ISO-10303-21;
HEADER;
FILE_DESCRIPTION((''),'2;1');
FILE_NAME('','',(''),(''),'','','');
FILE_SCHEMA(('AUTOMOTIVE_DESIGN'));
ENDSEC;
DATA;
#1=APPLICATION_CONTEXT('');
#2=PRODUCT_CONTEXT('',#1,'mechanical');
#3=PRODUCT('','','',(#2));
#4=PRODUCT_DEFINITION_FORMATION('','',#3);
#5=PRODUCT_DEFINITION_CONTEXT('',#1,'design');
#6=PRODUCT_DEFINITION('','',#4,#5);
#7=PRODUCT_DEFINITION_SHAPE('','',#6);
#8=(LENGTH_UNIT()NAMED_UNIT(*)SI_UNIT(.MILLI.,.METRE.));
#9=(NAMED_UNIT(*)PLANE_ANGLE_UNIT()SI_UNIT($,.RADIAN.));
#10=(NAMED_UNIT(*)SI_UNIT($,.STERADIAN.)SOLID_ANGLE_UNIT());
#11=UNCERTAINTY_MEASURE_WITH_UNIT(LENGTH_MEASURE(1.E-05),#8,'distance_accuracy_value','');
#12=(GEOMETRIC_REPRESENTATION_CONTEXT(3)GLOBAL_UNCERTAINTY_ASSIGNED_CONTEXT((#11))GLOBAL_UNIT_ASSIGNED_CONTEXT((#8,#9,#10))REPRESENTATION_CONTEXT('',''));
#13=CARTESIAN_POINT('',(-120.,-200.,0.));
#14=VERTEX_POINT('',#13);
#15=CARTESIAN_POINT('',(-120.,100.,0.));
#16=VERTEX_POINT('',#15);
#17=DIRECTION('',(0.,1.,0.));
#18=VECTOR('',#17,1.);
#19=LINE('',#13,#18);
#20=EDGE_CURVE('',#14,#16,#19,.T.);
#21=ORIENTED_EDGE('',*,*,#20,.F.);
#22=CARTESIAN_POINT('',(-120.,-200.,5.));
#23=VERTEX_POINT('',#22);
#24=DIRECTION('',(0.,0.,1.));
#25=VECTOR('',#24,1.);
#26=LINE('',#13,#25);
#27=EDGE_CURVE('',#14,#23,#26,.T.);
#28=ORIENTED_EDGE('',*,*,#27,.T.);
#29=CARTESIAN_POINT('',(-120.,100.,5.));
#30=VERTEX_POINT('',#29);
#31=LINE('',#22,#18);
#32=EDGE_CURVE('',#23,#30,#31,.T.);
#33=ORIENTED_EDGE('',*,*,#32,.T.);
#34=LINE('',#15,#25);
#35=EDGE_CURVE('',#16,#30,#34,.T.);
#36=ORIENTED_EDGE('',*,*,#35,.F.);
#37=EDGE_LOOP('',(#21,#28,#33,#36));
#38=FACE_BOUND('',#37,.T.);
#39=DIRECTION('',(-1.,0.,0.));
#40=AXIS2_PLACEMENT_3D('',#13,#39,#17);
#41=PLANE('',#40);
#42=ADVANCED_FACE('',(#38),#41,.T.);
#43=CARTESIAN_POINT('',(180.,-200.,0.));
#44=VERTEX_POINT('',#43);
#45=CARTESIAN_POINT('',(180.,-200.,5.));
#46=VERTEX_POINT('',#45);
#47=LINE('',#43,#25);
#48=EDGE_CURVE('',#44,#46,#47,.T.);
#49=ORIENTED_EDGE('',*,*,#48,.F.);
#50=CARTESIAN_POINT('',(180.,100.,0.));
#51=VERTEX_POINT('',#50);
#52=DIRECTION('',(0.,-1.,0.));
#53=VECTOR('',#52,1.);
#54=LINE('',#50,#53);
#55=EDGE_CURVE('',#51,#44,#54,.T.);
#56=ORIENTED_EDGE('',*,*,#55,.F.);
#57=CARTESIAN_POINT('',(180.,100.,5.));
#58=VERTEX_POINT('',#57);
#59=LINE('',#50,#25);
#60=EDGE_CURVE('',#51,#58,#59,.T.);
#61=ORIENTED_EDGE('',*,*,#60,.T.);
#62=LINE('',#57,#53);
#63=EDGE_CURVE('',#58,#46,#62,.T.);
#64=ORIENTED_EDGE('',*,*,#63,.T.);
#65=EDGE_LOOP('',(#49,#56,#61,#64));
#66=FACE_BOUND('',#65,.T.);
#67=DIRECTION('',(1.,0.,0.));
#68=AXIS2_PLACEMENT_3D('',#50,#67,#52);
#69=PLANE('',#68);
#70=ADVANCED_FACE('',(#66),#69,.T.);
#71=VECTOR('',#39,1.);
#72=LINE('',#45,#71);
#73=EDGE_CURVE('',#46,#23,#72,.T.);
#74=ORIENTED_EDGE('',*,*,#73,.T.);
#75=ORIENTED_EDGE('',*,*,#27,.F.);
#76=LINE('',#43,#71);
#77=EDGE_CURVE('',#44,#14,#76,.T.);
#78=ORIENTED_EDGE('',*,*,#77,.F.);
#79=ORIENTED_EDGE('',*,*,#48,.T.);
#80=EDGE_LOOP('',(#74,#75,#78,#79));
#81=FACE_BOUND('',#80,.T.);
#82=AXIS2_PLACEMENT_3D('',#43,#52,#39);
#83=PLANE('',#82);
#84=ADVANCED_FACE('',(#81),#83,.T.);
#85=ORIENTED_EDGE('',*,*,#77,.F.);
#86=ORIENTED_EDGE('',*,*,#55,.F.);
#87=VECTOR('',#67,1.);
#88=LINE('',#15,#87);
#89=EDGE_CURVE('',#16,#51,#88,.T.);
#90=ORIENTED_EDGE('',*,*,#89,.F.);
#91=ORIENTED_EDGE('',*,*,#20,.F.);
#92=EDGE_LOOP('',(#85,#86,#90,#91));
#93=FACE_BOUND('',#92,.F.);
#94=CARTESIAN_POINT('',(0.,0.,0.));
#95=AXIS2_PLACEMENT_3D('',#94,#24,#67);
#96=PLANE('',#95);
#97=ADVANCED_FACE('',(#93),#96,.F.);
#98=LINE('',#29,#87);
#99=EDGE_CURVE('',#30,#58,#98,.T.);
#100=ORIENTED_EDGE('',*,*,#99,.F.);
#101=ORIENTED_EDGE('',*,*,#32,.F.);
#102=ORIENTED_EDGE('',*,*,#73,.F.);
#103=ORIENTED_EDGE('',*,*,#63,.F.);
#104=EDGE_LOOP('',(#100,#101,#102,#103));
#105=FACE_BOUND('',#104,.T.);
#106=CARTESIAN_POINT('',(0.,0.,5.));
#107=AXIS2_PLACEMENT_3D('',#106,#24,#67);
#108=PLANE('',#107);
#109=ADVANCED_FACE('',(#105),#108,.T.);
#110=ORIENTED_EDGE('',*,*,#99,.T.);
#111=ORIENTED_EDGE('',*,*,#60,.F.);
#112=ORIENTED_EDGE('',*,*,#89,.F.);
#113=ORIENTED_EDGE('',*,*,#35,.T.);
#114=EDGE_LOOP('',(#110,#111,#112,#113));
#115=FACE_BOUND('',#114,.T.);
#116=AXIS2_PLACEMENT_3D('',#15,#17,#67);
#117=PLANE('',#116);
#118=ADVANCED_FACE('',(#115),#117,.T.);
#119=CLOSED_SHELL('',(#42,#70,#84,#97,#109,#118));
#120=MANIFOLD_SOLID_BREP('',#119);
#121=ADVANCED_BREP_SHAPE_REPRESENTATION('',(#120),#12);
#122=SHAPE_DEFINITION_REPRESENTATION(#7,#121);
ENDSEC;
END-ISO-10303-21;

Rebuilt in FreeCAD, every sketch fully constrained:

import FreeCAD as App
import Part
import Sketcher
from FreeCAD import Vector

doc = App.newDocument("Part")
body = doc.addObject("PartDesign::Body", "Body")

sketch1 = body.newObject("Sketcher::SketchObject", "Sketch")
sketch1.AttachmentSupport = (doc.getObject("XY_Plane"), [""])
sketch1.MapMode = "FlatFace"
sketch1.addGeometry([
    Part.LineSegment(Vector(180, 100, 0), Vector(-120, 100, 0)),
    Part.LineSegment(Vector(-120, 100, 0), Vector(-120, -200, 0)),
    Part.LineSegment(Vector(-120, -200, 0), Vector(180, -200, 0)),
    Part.LineSegment(Vector(180, -200, 0), Vector(180, 100, 0)),
], False)
sketch1.addConstraint([
    Sketcher.Constraint("Coincident", 0, 2, 1, 1),
    Sketcher.Constraint("Coincident", 1, 2, 2, 1),
    Sketcher.Constraint("Coincident", 2, 2, 3, 1),
    Sketcher.Constraint("Coincident", 3, 2, 0, 1),
    Sketcher.Constraint("Horizontal", 0),
    Sketcher.Constraint("Vertical", 1),
    Sketcher.Constraint("Horizontal", 2),
    Sketcher.Constraint("Vertical", 3),
    Sketcher.Constraint("Equal", 2, 1),
    Sketcher.Constraint("DistanceX", 0, 2, 0, 1, 300.0),
    Sketcher.Constraint("DistanceX", 0, 2, -1, 1, 120.0),
    Sketcher.Constraint("DistanceY", -1, 1, 0, 2, 100.0),
])
pad1 = body.newObject("PartDesign::Pad", "Pad")
pad1.Profile = sketch1
pad1.Length = 5

doc.recompute()
